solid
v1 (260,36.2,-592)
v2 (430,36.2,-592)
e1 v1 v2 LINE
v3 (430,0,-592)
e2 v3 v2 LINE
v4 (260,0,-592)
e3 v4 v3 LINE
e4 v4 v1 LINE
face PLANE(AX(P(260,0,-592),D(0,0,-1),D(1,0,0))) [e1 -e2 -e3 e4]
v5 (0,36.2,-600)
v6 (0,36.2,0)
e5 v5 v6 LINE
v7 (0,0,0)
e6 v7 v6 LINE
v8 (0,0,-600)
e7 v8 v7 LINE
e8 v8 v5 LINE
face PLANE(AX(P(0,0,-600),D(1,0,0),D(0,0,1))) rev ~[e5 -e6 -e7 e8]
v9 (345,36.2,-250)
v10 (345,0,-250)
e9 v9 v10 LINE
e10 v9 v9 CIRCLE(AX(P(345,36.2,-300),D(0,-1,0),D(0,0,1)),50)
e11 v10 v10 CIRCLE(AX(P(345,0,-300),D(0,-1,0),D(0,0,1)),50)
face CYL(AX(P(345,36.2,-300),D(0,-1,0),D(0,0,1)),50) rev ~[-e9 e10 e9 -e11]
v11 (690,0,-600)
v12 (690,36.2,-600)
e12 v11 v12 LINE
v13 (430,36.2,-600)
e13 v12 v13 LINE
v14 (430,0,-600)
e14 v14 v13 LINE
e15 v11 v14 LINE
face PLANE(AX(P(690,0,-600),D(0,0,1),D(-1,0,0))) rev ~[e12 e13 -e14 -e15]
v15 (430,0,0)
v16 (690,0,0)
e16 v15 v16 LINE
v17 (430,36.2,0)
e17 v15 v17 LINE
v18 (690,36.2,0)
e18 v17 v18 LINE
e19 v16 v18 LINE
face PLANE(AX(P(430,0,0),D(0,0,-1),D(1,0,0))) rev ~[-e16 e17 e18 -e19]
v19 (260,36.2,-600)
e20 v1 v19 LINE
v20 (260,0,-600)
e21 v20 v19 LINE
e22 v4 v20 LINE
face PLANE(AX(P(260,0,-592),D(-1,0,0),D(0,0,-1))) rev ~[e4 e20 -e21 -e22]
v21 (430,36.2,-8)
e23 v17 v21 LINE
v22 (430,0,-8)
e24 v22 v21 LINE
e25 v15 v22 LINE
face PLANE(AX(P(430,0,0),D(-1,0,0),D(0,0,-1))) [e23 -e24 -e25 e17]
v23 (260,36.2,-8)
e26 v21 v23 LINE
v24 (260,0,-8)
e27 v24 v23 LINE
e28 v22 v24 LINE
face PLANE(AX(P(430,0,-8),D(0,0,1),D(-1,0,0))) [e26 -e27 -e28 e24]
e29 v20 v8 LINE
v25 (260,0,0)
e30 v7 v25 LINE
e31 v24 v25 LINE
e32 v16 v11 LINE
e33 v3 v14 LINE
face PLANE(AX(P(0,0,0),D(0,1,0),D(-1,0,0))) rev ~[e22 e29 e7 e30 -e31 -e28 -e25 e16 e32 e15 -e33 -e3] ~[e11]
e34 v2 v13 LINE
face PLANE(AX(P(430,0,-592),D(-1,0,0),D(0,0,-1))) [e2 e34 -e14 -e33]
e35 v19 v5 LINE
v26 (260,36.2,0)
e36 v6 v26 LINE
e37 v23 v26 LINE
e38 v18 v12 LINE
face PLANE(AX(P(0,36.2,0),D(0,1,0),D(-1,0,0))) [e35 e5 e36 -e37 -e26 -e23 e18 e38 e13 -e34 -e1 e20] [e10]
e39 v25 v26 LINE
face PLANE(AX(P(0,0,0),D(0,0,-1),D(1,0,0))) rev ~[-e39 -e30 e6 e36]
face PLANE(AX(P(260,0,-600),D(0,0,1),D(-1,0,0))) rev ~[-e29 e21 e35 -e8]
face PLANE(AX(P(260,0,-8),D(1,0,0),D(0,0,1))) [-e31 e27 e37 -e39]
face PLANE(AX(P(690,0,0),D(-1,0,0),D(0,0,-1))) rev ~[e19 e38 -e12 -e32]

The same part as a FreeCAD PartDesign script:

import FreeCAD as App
import Part
import Sketcher


def add_polygon(sketch, points):
    """Adds a closed chain of lines whose ends are joined by coincident constraints."""
    first, n = sketch.GeometryCount, len(points)
    for a, b in zip(points, points[1:] + points[:1]):
        sketch.addGeometry(Part.LineSegment(App.Vector(*a, 0), App.Vector(*b, 0)), False)
    for i in range(n):
        sketch.addConstraint(Sketcher.Constraint("Coincident", first + i, 2, first + (i + 1) % n, 1))

doc = App.newDocument("Part")
body = doc.addObject("PartDesign::Body", "Body")

sketch1 = body.newObject("Sketcher::SketchObject", "Sketch")
sketch1.AttachmentSupport = (doc.getObject("XZ_Plane"), [""])
sketch1.MapMode = "FlatFace"
add_polygon(sketch1, [(430, 0), (690, 0), (690, -600), (430, -600), (430, -592), (260, -592), (260, -600), (0, -600), (0, 0), (260, 0), (260, -8), (430, -8)])
sketch1.addConstraint([
    Sketcher.Constraint("Horizontal", 0),
    Sketcher.Constraint("Vertical", 1),
    Sketcher.Constraint("Horizontal", 2),
    Sketcher.Constraint("Vertical", 3),
    Sketcher.Constraint("Horizontal", 4),
    Sketcher.Constraint("Vertical", 5),
    Sketcher.Constraint("Horizontal", 6),
    Sketcher.Constraint("Vertical", 7),
    Sketcher.Constraint("Horizontal", 8),
    Sketcher.Constraint("Vertical", 9),
    Sketcher.Constraint("Horizontal", 10),
    Sketcher.Constraint("Vertical", 11),
    Sketcher.Constraint("Coincident", 7, 2, -1, 1),
    Sketcher.Constraint("PointOnObject", 0, 2, -1),
    Sketcher.Constraint("Horizontal", 2, 2, 5, 2),
    Sketcher.Constraint("Vertical", 5, 2, 8, 2),
    Sketcher.Constraint("Vertical", 3, 2, 10, 2),
    Sketcher.Constraint("Equal", 2, 6),
    Sketcher.Constraint("Equal", 5, 9),
    Sketcher.Constraint("DistanceY", 1, 2, 1, 1, 600.0),
    Sketcher.Constraint("DistanceX", -1, 1, 0, 2, 690.0),
    Sketcher.Constraint("DistanceX", 0, 1, 0, 2, 260.0),
    Sketcher.Constraint("DistanceY", 3, 1, 3, 2, 8.0),
])
pad1 = body.newObject("PartDesign::Pad", "Pad")
pad1.Profile = sketch1
pad1.Length = 36.2
pad1.Reversed = True

sketch2 = body.newObject("Sketcher::SketchObject", "Sketch001")
sketch2.AttachmentSupport = (doc.getObject("XZ_Plane"), [""])
sketch2.MapMode = "FlatFace"
sketch2.AttachmentOffset = App.Placement(App.Vector(0, 0, -36.2), App.Rotation())
sketch2.addGeometry(Part.Circle(App.Vector(345, -300, 0), App.Vector(0, 0, 1), 50), False)
sketch2.addConstraint([
    Sketcher.Constraint("Diameter", 0, 100.0),
    Sketcher.Constraint("DistanceX", -1, 1, 0, 3, 345.0),
    Sketcher.Constraint("DistanceY", 0, 3, -1, 1, 300.0),
])
doc.recompute()
hole = body.newObject("PartDesign::Hole", "Hole")
hole.Profile = sketch2
hole.ThreadType = "None"
hole.Diameter = 100
hole.DepthType = "ThroughAll"
hole.Reversed = True

doc.recompute()
